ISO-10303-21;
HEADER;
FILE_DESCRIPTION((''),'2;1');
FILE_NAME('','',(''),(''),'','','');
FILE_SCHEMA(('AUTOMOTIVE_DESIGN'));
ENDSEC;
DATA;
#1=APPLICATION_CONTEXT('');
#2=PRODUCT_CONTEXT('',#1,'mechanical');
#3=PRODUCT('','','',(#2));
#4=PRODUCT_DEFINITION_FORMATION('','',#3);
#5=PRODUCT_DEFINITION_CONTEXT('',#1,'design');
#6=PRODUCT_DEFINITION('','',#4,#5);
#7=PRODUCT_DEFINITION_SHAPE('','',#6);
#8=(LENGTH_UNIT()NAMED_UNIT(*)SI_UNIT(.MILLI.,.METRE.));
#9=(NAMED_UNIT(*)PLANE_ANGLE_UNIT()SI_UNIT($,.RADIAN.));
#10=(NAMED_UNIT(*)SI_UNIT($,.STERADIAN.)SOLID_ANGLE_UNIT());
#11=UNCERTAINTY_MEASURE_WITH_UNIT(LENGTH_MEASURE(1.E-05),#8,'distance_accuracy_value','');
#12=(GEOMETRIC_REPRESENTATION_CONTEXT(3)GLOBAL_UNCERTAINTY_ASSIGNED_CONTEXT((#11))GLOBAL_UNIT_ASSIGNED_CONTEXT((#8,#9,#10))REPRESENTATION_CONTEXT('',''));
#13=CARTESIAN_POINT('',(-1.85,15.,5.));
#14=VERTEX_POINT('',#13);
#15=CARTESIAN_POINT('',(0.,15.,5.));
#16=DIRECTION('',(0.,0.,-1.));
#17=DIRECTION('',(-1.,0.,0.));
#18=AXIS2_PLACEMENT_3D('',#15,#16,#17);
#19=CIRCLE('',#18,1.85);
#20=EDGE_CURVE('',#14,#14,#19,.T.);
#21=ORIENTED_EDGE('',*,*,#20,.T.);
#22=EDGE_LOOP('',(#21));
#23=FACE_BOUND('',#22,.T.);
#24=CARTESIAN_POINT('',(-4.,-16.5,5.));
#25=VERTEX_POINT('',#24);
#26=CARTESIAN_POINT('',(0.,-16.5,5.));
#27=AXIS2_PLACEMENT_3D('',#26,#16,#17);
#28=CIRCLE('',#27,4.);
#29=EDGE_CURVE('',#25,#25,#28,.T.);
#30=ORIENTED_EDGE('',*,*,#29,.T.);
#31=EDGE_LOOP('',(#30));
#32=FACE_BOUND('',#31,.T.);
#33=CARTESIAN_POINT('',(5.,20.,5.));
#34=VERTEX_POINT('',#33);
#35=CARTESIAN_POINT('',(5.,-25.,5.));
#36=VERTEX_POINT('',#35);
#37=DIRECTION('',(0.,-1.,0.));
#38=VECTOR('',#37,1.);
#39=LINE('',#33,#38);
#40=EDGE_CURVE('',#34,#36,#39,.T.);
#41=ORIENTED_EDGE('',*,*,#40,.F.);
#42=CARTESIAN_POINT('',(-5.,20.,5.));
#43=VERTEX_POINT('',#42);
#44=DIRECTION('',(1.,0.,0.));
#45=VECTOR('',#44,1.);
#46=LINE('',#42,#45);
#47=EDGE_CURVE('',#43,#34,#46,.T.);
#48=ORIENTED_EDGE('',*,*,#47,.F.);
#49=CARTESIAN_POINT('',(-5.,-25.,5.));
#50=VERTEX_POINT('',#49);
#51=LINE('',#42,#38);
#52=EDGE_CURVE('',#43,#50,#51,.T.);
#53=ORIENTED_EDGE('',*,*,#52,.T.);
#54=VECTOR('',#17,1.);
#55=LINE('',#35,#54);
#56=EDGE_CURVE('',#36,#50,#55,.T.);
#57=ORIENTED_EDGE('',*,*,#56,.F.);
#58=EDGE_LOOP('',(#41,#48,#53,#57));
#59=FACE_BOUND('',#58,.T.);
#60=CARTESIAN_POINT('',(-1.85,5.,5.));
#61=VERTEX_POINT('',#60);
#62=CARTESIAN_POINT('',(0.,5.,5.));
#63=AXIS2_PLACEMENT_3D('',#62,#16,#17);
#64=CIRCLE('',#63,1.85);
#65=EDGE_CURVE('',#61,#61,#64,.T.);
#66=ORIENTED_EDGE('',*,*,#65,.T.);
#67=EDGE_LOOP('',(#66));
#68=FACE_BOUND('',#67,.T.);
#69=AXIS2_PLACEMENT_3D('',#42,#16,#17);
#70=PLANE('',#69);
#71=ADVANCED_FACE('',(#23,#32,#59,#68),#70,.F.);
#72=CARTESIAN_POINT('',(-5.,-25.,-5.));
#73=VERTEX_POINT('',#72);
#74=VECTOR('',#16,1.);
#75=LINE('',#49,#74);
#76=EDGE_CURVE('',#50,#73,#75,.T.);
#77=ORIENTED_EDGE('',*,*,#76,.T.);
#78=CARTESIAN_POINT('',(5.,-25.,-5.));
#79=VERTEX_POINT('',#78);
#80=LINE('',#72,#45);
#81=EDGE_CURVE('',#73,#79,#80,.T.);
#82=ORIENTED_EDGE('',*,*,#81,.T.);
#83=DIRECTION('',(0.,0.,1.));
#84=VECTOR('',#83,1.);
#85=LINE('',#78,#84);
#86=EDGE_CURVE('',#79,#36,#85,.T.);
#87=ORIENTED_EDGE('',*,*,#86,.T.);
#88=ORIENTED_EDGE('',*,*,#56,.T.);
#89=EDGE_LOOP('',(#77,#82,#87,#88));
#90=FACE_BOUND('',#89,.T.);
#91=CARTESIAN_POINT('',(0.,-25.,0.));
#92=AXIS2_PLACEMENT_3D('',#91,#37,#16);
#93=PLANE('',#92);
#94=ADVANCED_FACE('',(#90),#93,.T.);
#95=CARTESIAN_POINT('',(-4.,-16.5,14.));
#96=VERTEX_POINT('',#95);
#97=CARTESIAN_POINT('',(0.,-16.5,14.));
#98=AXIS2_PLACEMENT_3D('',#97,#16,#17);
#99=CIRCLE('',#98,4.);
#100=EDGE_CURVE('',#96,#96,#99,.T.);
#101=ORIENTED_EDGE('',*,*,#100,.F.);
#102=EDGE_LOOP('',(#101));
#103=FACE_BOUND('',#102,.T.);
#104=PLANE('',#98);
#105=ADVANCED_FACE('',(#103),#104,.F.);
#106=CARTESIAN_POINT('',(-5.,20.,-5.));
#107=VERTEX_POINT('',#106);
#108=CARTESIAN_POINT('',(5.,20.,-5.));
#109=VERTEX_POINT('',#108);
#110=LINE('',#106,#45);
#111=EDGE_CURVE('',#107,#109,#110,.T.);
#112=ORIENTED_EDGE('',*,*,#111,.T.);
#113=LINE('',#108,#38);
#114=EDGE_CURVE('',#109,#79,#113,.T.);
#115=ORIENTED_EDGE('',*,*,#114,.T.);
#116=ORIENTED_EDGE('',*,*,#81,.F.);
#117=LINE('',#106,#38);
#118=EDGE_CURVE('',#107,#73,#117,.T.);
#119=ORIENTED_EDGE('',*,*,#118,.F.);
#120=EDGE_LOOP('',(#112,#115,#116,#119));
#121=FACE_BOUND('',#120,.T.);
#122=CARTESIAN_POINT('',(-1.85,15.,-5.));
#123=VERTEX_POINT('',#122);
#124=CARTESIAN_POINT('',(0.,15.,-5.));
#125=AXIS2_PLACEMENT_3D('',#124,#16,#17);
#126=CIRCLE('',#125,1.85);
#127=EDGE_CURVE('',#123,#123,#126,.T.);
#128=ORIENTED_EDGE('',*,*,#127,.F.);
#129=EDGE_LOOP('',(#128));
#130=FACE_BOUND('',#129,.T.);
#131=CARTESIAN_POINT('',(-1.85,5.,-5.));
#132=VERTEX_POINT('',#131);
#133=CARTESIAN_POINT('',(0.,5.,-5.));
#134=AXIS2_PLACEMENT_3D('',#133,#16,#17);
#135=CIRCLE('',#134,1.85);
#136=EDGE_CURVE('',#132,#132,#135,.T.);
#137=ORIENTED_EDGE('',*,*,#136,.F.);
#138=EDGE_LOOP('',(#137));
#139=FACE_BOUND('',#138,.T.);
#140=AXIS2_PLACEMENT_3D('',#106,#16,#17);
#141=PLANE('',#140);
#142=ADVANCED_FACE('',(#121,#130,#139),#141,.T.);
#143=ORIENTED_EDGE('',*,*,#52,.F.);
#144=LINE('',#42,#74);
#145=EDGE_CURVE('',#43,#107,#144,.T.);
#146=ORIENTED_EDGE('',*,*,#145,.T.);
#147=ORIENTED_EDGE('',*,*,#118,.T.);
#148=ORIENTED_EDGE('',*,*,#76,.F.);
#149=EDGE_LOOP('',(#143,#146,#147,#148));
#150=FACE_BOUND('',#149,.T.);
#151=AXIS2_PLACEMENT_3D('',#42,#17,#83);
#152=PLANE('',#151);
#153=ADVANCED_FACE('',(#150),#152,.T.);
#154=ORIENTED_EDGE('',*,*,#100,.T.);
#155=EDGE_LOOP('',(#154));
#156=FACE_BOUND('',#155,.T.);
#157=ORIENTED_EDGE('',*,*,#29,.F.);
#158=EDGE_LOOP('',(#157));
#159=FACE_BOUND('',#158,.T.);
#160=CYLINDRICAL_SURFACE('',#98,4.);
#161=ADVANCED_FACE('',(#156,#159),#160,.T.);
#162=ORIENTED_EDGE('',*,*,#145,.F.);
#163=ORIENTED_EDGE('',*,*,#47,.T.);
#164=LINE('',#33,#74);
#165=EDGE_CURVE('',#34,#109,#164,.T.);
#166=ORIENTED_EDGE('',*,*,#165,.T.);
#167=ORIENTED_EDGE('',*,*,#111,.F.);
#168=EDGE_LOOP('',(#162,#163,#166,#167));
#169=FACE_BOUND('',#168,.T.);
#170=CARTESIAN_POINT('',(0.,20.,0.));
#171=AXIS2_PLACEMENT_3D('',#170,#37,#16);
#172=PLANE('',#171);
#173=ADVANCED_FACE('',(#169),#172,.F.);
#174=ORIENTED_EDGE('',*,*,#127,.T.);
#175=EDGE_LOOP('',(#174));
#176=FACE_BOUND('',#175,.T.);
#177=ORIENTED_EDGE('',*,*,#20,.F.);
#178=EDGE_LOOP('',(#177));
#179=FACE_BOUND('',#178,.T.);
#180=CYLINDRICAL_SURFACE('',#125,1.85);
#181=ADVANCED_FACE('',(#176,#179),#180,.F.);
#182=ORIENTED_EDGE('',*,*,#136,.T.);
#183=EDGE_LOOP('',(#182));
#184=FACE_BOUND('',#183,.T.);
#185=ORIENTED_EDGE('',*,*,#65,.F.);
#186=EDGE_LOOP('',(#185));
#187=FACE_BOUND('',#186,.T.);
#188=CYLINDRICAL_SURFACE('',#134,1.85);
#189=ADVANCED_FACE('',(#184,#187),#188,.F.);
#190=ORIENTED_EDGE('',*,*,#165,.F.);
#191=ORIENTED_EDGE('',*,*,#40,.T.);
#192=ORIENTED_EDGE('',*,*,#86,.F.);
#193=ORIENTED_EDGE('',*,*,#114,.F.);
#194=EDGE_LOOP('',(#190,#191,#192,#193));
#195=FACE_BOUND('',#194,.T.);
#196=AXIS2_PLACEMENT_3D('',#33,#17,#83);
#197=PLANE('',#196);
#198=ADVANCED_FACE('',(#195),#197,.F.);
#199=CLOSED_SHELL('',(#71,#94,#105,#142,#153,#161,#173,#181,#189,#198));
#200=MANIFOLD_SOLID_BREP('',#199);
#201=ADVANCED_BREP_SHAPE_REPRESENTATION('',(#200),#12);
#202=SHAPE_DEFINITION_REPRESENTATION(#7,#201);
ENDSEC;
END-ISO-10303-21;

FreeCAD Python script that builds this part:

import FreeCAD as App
import Part
import Sketcher
from FreeCAD import Vector


def add_polygon(sketch, points):
    """Adds a closed chain of lines whose ends are joined by coincident constraints."""
    first, n = sketch.GeometryCount, len(points)
    for a, b in zip(points, points[1:] + points[:1]):
        sketch.addGeometry(Part.LineSegment(App.Vector(*a, 0), App.Vector(*b, 0)), False)
    for i in range(n):
        sketch.addConstraint(Sketcher.Constraint("Coincident", first + i, 2, first + (i + 1) % n, 1))

doc = App.newDocument("Part")
body = doc.addObject("PartDesign::Body", "Body")

sketch1 = doc.addObject("Sketcher::SketchObject", "Sketch")
body.addObject(sketch1)
sketch1.AttachmentSupport = (doc.XZ_Plane, [""])
sketch1.MapMode = "FlatFace"
add_polygon(sketch1, [(-5, -5), (-5, 5), (5, 5), (5, -5)])
sketch1.addConstraint(Sketcher.Constraint("Vertical", 0))
sketch1.addConstraint(Sketcher.Constraint("Horizontal", 1))
sketch1.addConstraint(Sketcher.Constraint("Vertical", 2))
sketch1.addConstraint(Sketcher.Constraint("Horizontal", 3))
sketch1.addConstraint(Sketcher.Constraint("Symmetric", 0, 2, 2, 2, -1, 1))
sketch1.addConstraint(Sketcher.Constraint("Equal", 3, 0))
sketch1.addConstraint(Sketcher.Constraint("DistanceX", 1, 1, 1, 2, 10.0))
pad1 = doc.addObject("PartDesign::Pad", "Pad")
body.addObject(pad1)
pad1.Profile = sketch1
pad1.Length = 20
pad1.Reversed = True

sketch2 = doc.addObject("Sketcher::SketchObject", "Sketch001")
body.addObject(sketch2)
sketch2.AttachmentSupport = (doc.XY_Plane, [""])
sketch2.MapMode = "FlatFace"
sketch2.AttachmentOffset = App.Placement(Vector(0, 0, -5), App.Rotation())
sketch2.addGeometry(Part.Circle(Vector(0, 15, 0), Vector(0, 0, 1), 1.9), False)
sketch2.addGeometry(Part.Circle(Vector(0, 5, 0), Vector(0, 0, 1), 1.9), False)
sketch2.addConstraint(Sketcher.Constraint("Equal", 0, 1))
sketch2.addConstraint(Sketcher.Constraint("PointOnObject", 0, 3, -2))
sketch2.addConstraint(Sketcher.Constraint("PointOnObject", 1, 3, -2))
sketch2.addConstraint(Sketcher.Constraint("Diameter", 0, 3.7))
sketch2.addConstraint(Sketcher.Constraint("DistanceY", -1, 1, 0, 3, 15.0))
sketch2.addConstraint(Sketcher.Constraint("DistanceY", -1, 1, 1, 3, 5.0))
doc.recompute()
hole = doc.addObject("PartDesign::Hole", "Hole")
body.addObject(hole)
hole.Profile = sketch2
hole.ThreadType = "None"
hole.Diameter = 3.7
hole.DepthType = "ThroughAll"
hole.Reversed = True

sketch3 = doc.addObject("Sketcher::SketchObject", "Sketch002")
body.addObject(sketch3)
sketch3.AttachmentSupport = (doc.XZ_Plane, [""])
sketch3.MapMode = "FlatFace"
add_polygon(sketch3, [(-5, 5), (-5, -5), (5, -5), (5, 5)])
sketch3.addConstraint(Sketcher.Constraint("Vertical", 0))
sketch3.addConstraint(Sketcher.Constraint("Horizontal", 1))
sketch3.addConstraint(Sketcher.Constraint("Vertical", 2))
sketch3.addConstraint(Sketcher.Constraint("Horizontal", 3))
sketch3.addConstraint(Sketcher.Constraint("Symmetric", 0, 2, 2, 2, -1, 1))
sketch3.addConstraint(Sketcher.Constraint("Equal", 3, 0))
sketch3.addConstraint(Sketcher.Constraint("DistanceX", 1, 1, 1, 2, 10.0))
pad2 = doc.addObject("PartDesign::Pad", "Pad001")
body.addObject(pad2)
pad2.Profile = sketch3
pad2.Length = 25

sketch4 = doc.addObject("Sketcher::SketchObject", "Sketch003")
body.addObject(sketch4)
sketch4.AttachmentSupport = (doc.XY_Plane, [""])
sketch4.MapMode = "FlatFace"
sketch4.AttachmentOffset = App.Placement(Vector(0, 0, 5), App.Rotation())
sketch4.addGeometry(Part.Circle(Vector(0, -16.5, 0), Vector(0, 0, 1), 4), False)
sketch4.addConstraint(Sketcher.Constraint("PointOnObject", 0, 3, -2))
sketch4.addConstraint(Sketcher.Constraint("Diameter", 0, 8.0))
sketch4.addConstraint(Sketcher.Constraint("DistanceY", 0, 3, -1, 1, 16.5))
pad3 = doc.addObject("PartDesign::Pad", "Pad002")
body.addObject(pad3)
pad3.Profile = sketch4
pad3.Length = 9

doc.recompute()
